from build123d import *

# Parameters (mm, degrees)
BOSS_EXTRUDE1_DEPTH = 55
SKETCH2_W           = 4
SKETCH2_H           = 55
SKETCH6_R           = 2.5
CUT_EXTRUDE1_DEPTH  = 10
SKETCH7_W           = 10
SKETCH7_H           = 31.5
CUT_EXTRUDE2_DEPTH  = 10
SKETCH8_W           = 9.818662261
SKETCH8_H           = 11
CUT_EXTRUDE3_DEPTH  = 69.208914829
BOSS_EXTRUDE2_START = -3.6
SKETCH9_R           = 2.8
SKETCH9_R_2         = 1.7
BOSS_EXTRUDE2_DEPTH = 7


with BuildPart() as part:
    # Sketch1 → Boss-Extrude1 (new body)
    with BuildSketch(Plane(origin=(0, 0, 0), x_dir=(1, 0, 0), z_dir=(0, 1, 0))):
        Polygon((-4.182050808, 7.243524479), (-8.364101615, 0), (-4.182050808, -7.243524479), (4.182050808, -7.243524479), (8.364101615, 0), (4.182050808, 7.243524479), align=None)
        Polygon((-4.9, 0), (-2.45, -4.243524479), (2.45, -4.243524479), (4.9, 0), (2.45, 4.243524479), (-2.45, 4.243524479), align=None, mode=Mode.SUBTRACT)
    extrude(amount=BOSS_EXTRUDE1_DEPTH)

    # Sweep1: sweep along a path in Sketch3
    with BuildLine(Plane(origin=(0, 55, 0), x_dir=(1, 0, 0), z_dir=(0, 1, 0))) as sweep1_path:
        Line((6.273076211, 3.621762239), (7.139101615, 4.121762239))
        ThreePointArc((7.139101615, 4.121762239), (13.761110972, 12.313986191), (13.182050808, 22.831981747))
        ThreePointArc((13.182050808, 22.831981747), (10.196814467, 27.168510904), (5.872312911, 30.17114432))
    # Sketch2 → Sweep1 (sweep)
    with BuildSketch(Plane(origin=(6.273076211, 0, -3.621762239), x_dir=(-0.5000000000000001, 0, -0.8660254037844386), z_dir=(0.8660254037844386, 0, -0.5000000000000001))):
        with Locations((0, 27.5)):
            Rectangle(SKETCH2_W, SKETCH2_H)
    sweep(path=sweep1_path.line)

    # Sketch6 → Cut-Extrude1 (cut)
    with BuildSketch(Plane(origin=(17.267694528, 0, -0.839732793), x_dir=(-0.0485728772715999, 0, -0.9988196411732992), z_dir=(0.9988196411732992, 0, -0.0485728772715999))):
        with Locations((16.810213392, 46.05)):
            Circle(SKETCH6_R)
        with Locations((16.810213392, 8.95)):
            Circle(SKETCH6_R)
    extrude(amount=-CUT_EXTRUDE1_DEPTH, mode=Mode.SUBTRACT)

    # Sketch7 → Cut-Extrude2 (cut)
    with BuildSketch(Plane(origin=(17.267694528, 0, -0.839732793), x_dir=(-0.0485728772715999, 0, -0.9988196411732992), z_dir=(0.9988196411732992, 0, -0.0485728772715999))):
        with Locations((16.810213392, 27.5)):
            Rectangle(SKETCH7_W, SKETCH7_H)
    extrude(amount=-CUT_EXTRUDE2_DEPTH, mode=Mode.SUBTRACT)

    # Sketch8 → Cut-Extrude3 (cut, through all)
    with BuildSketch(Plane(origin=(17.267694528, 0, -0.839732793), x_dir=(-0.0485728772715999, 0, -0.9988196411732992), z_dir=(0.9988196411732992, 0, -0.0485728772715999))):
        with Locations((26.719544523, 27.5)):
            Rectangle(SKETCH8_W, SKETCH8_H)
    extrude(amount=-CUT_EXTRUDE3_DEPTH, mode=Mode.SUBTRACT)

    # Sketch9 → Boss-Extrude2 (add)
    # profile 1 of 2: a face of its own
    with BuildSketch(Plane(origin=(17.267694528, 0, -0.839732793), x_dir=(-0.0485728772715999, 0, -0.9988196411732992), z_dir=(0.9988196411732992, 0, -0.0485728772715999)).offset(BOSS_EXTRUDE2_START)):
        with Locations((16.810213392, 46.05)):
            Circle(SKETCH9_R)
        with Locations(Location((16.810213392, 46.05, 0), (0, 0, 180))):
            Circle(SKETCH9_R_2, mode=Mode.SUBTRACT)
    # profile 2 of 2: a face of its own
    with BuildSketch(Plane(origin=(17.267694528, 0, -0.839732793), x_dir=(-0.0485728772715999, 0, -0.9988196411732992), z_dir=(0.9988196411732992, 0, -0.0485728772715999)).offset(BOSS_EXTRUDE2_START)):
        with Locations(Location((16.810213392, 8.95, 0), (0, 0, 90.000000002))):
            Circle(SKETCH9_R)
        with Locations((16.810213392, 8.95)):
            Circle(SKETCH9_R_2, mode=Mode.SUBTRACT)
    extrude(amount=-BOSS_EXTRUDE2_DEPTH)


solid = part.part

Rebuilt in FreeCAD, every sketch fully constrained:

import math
import FreeCAD as App
import Part
import Sketcher
Q = App.Units.Quantity


def add_polygon(sketch, points):
    """Adds a closed chain of lines whose ends are joined by coincident constraints."""
    first, n = sketch.GeometryCount, len(points)
    for a, b in zip(points, points[1:] + points[:1]):
        sketch.addGeometry(Part.LineSegment(App.Vector(*a, 0), App.Vector(*b, 0)), False)
    for i in range(n):
        sketch.addConstraint(Sketcher.Constraint("Coincident", first + i, 2, first + (i + 1) % n, 1))

doc = App.newDocument("Part")
params = doc.addObject("Spreadsheet::Sheet", "Params")
for row, (alias, value) in enumerate([
    ("sketch1_width", "4.9 mm"),
    ("sketch1_length", "4.9 mm"),
    ("pad1_length", "55 mm"),
    ("sketch2_width", "4 mm"),
    ("sketch2_height", "55 mm"),
    ("sketch3_length", "1 mm"),
    ("sketch4_diameter", "5 mm"),
    ("pocket1_length", "10 mm"),
    ("sketch5_width", "10 mm"),
    ("sketch5_height", "31.5 mm"),
    ("pocket2_length", "10 mm"),
    ("sketch6_height", "11 mm"),
    ("sketch7_diameter", "5.6 mm"),
    ("sketch7_diameter2", "3.4 mm"),
    ("pad2_length", "7 mm"),
], start=1):
    params.set(f"A{row}", alias)
    params.set(f"B{row}", "=" + value)
    params.setAlias(f"B{row}", alias)

body = doc.addObject("PartDesign::Body", "Body")

sketch1 = body.newObject("Sketcher::SketchObject", "Sketch")
sketch1.AttachmentSupport = (doc.getObject("XZ_Plane"), [""])
sketch1.MapMode = "FlatFace"
add_polygon(sketch1, [(-4.2, -7.2), (-8.4, 0), (-4.2, 7.2), (4.2, 7.2), (8.4, 0), (4.2, -7.2)])
add_polygon(sketch1, [(-2.5, 4.2), (-4.9, 0), (-2.5, -4.2), (2.5, -4.2), (4.9, 0), (2.5, 4.2)])
sketch1.addConstraint([
    Sketcher.Constraint("Horizontal", 2),
    Sketcher.Constraint("Horizontal", 5),
    Sketcher.Constraint("Horizontal", 8),
    Sketcher.Constraint("Horizontal", 11),
    Sketcher.Constraint("Symmetric", 0, 2, 3, 2, -1, 1),
    Sketcher.Constraint("Symmetric", 1, 2, 4, 2, -1, 1),
    Sketcher.Constraint("Symmetric", 6, 2, 9, 2, -1, 1),
    Sketcher.Constraint("Symmetric", 7, 2, 10, 2, -1, 1),
    Sketcher.Constraint("PointOnObject", 0, 2, -1),
    Sketcher.Constraint("PointOnObject", 6, 2, -1),
    Sketcher.Constraint("Parallel", 0, 3),
    Sketcher.Constraint("Parallel", 4, 6),
    Sketcher.Constraint("Parallel", 3, 7),
    Sketcher.Constraint("Parallel", 6, 9),
    Sketcher.Constraint("Vertical", 2, 2, 4, 2),
    Sketcher.Constraint("Angle", 0, Q("120 deg")),
    Sketcher.Constraint("DistanceX", 8, 1, 8, 2, 4.9),
    Sketcher.Constraint("DistanceY", 5, 2, 7, 2, 3.0),
    Sketcher.Constraint("Distance", 6, 4.9),
    Sketcher.Constraint("DistanceX", 2, 1, 2, 2, 8.364102),
])
sketch1.setExpression("Constraints[28]", "Params.sketch1_width")
sketch1.setExpression("Constraints[30]", "Params.sketch1_length")
pad1 = body.newObject("PartDesign::Pad", "Pad")
pad1.Profile = sketch1
pad1.setExpression("Length", "Params.pad1_length")
pad1.Reversed = True

sketch2 = body.newObject("Sketcher::SketchObject", "Sketch001")
sketch2.Placement = App.Placement(App.Vector(6.273076, 0, -3.621762), App.Rotation(App.Vector(-0.5, 0, -0.866025404), App.Vector(0, 1, 0), App.Vector(0.866025404, 0, -0.5), "ZXY"))
add_polygon(sketch2, [(-2, 55), (-2, 0), (2, 0), (2, 55)])
sketch2.addConstraint([
    Sketcher.Constraint("Vertical", 0),
    Sketcher.Constraint("Horizontal", 1),
    Sketcher.Constraint("Vertical", 2),
    Sketcher.Constraint("Horizontal", 3),
    Sketcher.Constraint("Symmetric", 0, 2, 1, 2, -1, 1),
    Sketcher.Constraint("DistanceX", 1, 1, 1, 2, 4.0),
    Sketcher.Constraint("DistanceY", 0, 2, 0, 1, 55.0),
])
sketch2.setExpression("Constraints[9]", "Params.sketch2_width")
sketch2.setExpression("Constraints[10]", "Params.sketch2_height")

sketch3 = body.newObject("Sketcher::SketchObject", "Sketch002")
sketch3.AttachmentSupport = (doc.getObject("XZ_Plane"), [""])
sketch3.MapMode = "FlatFace"
sketch3.AttachmentOffset = App.Placement(App.Vector(0, 0, -55), App.Rotation())
sketch3.addGeometry([
    Part.LineSegment(App.Vector(6.3, -3.6, 0), App.Vector(7.1, -4.1, 0)),
    Part.ArcOfCircle(Part.Circle(App.Vector(-0.2, -16.8, 0), App.Vector(0, 0, 1), 14.7), math.radians(-24), math.radians(60)),
    Part.ArcOfCircle(Part.Circle(App.Vector(-0.2, -16.8, 0), App.Vector(0, 0, 1), 14.7), math.radians(-66), math.radians(-24)),
], False)
sketch3.addConstraint([
    Sketcher.Constraint("Tangent", 0, 2, 1, 2),
    Sketcher.Constraint("Tangent", 1, 1, 2, 2),
    Sketcher.Constraint("Equal", 1, 2),
    Sketcher.Constraint("Angle", 0, Q("-30 deg")),
    Sketcher.Constraint("Distance", 0, 1.0),
    Sketcher.Constraint("Radius", 1, 14.663483),
    Sketcher.Constraint("DistanceX", -1, 1, 0, 2, 7.139102),
    Sketcher.Constraint("DistanceY", 1, 3, -1, 1, 16.820711),
    Sketcher.Constraint("DistanceX", -1, 1, 1, 1, 13.182051),
    Sketcher.Constraint("DistanceX", 2, 1, 0, 2, 1.266789),
])
sketch3.setExpression("Constraints[4]", "Params.sketch3_length")
doc.recompute()

additivepipe = body.newObject("PartDesign::AdditivePipe", "AdditivePipe")
additivepipe.Profile = sketch2
additivepipe.Spine = (sketch3, ["Edge1", "Edge2", "Edge3"])

sketch4 = body.newObject("Sketcher::SketchObject", "Sketch003")
sketch4.Placement = App.Placement(App.Vector(17.267695, 0, -0.839733), App.Rotation(App.Vector(-0.048572877, 0, -0.998819641), App.Vector(0, 1, 0), App.Vector(0.998819641, 0, -0.048572877), "ZXY"))
sketch4.addGeometry([
    Part.Circle(App.Vector(16.8, 46, 0), App.Vector(0, 0, 1), 2.5),
    Part.Circle(App.Vector(16.8, 8.9, 0), App.Vector(0, 0, 1), 2.5),
], False)
sketch4.addConstraint([
    Sketcher.Constraint("Equal", 0, 1),
    Sketcher.Constraint("Vertical", 0, 3, 1, 3),
    Sketcher.Constraint("Diameter", 0, 5.0),
    Sketcher.Constraint("DistanceY", 1, 3, 0, 3, 37.1),
    Sketcher.Constraint("DistanceY", -1, 1, 0, 3, 46.05),
    Sketcher.Constraint("DistanceX", -1, 1, 0, 3, 16.810213),
])
sketch4.setExpression("Constraints[2]", "Params.sketch4_diameter")
pocket1 = body.newObject("PartDesign::Pocket", "Pocket")
pocket1.Profile = sketch4
pocket1.setExpression("Length", "Params.pocket1_length")

sketch5 = body.newObject("Sketcher::SketchObject", "Sketch004")
sketch5.Placement = App.Placement(App.Vector(17.267695, 0, -0.839733), App.Rotation(App.Vector(-0.048572877, 0, -0.998819641), App.Vector(0, 1, 0), App.Vector(0.998819641, 0, -0.048572877), "ZXY"))
add_polygon(sketch5, [(12, 43), (12, 12), (22, 12), (22, 43)])
sketch5.addConstraint([
    Sketcher.Constraint("Vertical", 0),
    Sketcher.Constraint("Horizontal", 1),
    Sketcher.Constraint("Vertical", 2),
    Sketcher.Constraint("Horizontal", 3),
    Sketcher.Constraint("DistanceX", 1, 1, 1, 2, 10.0),
    Sketcher.Constraint("DistanceY", 0, 2, 0, 1, 31.5),
    Sketcher.Constraint("DistanceY", -1, 1, 0, 2, 11.75),
    Sketcher.Constraint("DistanceX", -1, 1, 0, 2, 11.810213),
])
sketch5.setExpression("Constraints[8]", "Params.sketch5_width")
sketch5.setExpression("Constraints[9]", "Params.sketch5_height")
pocket2 = body.newObject("PartDesign::Pocket", "Pocket001")
pocket2.Profile = sketch5
pocket2.setExpression("Length", "Params.pocket2_length")

sketch6 = body.newObject("Sketcher::SketchObject", "Sketch005")
sketch6.Placement = App.Placement(App.Vector(17.267695, 0, -0.839733), App.Rotation(App.Vector(-0.048572877, 0, -0.998819641), App.Vector(0, 1, 0), App.Vector(0.998819641, 0, -0.048572877), "ZXY"))
add_polygon(sketch6, [(22, 33), (22, 22), (32, 22), (32, 33)])
sketch6.addConstraint([
    Sketcher.Constraint("Vertical", 0),
    Sketcher.Constraint("Horizontal", 1),
    Sketcher.Constraint("Vertical", 2),
    Sketcher.Constraint("Horizontal", 3),
    Sketcher.Constraint("DistanceY", 0, 2, 0, 1, 11.0),
    Sketcher.Constraint("DistanceY", -1, 1, 0, 2, 22.0),
    Sketcher.Constraint("DistanceX", 1, 1, 1, 2, 9.818662),
    Sketcher.Constraint("DistanceX", -1, 1, 0, 2, 21.810213),
])
sketch6.setExpression("Constraints[8]", "Params.sketch6_height")
pocket3 = body.newObject("PartDesign::Pocket", "Pocket002")
pocket3.Profile = sketch6
pocket3.Type = "ThroughAll"

sketch7 = body.newObject("Sketcher::SketchObject", "Sketch006")
sketch7.Placement = App.Placement(App.Vector(13.671944, 0, -0.66487), App.Rotation(App.Vector(-0.048572877, 0, -0.998819641), App.Vector(0, 1, 0), App.Vector(0.998819641, 0, -0.048572877), "ZXY"))
sketch7.addGeometry([
    Part.Circle(App.Vector(16.8, 46, 0), App.Vector(0, 0, 1), 2.8),
    Part.Circle(App.Vector(16.8, 46, 0), App.Vector(0, 0, 1), 1.7),
    Part.Circle(App.Vector(16.8, 8.9, 0), App.Vector(0, 0, 1), 2.8),
    Part.Circle(App.Vector(16.8, 8.9, 0), App.Vector(0, 0, 1), 1.7),
], False)
sketch7.addConstraint([
    Sketcher.Constraint("Coincident", 1, 3, 0, 3),
    Sketcher.Constraint("Coincident", 3, 3, 2, 3),
    Sketcher.Constraint("Equal", 0, 2),
    Sketcher.Constraint("Equal", 1, 3),
    Sketcher.Constraint("Vertical", 1, 3, 2, 3),
    Sketcher.Constraint("Diameter", 0, 5.6),
    Sketcher.Constraint("Diameter", 1, 3.4),
    Sketcher.Constraint("DistanceY", 2, 3, 0, 3, 37.1),
    Sketcher.Constraint("DistanceY", -1, 1, 0, 3, 46.05),
    Sketcher.Constraint("DistanceX", -1, 1, 0, 3, 16.810213),
])
sketch7.setExpression("Constraints[5]", "Params.sketch7_diameter")
sketch7.setExpression("Constraints[6]", "Params.sketch7_diameter2")
pad2 = body.newObject("PartDesign::Pad", "Pad001")
pad2.Profile = sketch7
pad2.setExpression("Length", "Params.pad2_length")
pad2.Reversed = True

doc.recompute()
